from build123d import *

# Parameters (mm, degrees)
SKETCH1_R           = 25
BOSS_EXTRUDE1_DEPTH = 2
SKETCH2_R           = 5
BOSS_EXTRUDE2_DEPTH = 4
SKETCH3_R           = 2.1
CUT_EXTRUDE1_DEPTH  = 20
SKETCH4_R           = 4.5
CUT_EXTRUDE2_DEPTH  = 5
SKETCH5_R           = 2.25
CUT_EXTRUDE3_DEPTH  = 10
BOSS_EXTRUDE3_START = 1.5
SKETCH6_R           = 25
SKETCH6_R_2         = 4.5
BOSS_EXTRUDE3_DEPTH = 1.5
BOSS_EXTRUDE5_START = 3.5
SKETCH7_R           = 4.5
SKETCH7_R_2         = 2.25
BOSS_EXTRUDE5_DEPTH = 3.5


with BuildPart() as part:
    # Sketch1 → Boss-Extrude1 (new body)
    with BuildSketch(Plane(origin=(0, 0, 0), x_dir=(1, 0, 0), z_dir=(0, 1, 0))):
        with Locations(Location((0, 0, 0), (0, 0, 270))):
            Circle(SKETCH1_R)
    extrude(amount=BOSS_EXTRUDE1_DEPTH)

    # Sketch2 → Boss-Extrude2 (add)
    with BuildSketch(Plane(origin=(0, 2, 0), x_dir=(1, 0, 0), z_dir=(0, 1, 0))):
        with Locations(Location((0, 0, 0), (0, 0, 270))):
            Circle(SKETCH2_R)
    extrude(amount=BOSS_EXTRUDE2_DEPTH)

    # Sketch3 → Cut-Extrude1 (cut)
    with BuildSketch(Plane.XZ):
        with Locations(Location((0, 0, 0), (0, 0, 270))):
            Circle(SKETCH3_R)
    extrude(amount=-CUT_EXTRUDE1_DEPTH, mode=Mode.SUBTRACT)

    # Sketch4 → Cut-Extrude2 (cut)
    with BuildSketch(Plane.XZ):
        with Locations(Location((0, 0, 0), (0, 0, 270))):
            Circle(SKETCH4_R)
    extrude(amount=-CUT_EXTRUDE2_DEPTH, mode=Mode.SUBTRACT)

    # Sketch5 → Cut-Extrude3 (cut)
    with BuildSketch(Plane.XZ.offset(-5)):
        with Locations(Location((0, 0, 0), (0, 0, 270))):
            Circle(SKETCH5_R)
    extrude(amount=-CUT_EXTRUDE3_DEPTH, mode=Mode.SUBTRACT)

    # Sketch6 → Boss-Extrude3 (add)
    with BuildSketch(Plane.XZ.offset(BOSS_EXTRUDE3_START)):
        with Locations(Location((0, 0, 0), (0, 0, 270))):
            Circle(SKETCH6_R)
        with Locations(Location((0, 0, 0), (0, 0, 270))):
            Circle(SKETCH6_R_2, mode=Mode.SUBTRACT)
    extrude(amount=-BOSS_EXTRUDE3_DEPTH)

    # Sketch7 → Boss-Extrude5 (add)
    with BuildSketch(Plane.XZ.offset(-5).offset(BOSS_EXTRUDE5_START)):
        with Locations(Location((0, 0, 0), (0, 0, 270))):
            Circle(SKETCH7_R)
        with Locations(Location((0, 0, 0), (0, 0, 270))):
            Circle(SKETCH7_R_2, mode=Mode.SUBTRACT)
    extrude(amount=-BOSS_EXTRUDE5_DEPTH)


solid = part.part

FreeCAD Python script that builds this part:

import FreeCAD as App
import Part
import Sketcher
from FreeCAD import Vector
Q = App.Units.Quantity

doc = App.newDocument("Part")
params = doc.addObject("Spreadsheet::Sheet", "Params")
for row, (alias, value) in enumerate([
    ("sketch1_diameter", "50 mm"),
    ("pad1_length", "2 mm"),
    ("sketch2_diameter", "10 mm"),
    ("pad2_length", "4 mm"),
    ("sketch3_diameter", "4.2 mm"),
    ("pocket1_length", "20 mm"),
    ("sketch4_diameter", "9 mm"),
    ("pocket2_length", "5 mm"),
    ("sketch5_diameter", "4.5 mm"),
    ("pocket3_length", "10 mm"),
    ("sketch6_diameter", "50 mm"),
    ("sketch6_diameter2", "9 mm"),
    ("pad3_length", "1.5 mm"),
    ("sketch7_diameter", "9 mm"),
    ("sketch7_diameter2", "4.5 mm"),
    ("pad4_length", "3.5 mm"),
], start=1):
    params.set(f"A{row}", alias)
    params.set(f"B{row}", "=" + value)
    params.setAlias(f"B{row}", alias)

body = doc.addObject("PartDesign::Body", "Body")

# Sketch on XZ plane
sketch1 = body.newObject("Sketcher::SketchObject", "Sketch")
sketch1.AttachmentSupport = (doc.getObject("XZ_Plane"), [""])
sketch1.MapMode = "FlatFace"
sketch1.addGeometry(Part.Circle(Vector(0, 0, 0), Vector(0, 0, 1), 25), False)
sketch1.addConstraint(Sketcher.Constraint("Coincident", 0, 3, -1, 1))
sketch1.addConstraint(Sketcher.Constraint("Diameter", 0, Q("50 mm")))
sketch1.setExpression("Constraints[1]", "Params.sketch1_diameter")
pad1 = body.newObject("PartDesign::Pad", "Pad")
pad1.Profile = sketch1
pad1.setExpression("Length", "Params.pad1_length")
pad1.Reversed = True

# Sketch on XZ plane
sketch2 = body.newObject("Sketcher::SketchObject", "Sketch001")
sketch2.AttachmentSupport = (doc.getObject("XZ_Plane"), [""])
sketch2.MapMode = "FlatFace"
sketch2.AttachmentOffset = App.Placement(Vector(0, 0, -2), App.Rotation())
sketch2.addGeometry(Part.Circle(Vector(0, 0, 0), Vector(0, 0, 1), 5), False)
sketch2.addConstraint(Sketcher.Constraint("Coincident", 0, 3, -1, 1))
sketch2.addConstraint(Sketcher.Constraint("Diameter", 0, Q("10 mm")))
sketch2.setExpression("Constraints[1]", "Params.sketch2_diameter")
pad2 = body.newObject("PartDesign::Pad", "Pad001")
pad2.Profile = sketch2
pad2.setExpression("Length", "Params.pad2_length")
pad2.Reversed = True

# Sketch on XZ plane
sketch3 = body.newObject("Sketcher::SketchObject", "Sketch002")
sketch3.AttachmentSupport = (doc.getObject("XZ_Plane"), [""])
sketch3.MapMode = "FlatFace"
sketch3.addGeometry(Part.Circle(Vector(0, 0, 0), Vector(0, 0, 1), 2.1), False)
sketch3.addConstraint(Sketcher.Constraint("Coincident", 0, 3, -1, 1))
sketch3.addConstraint(Sketcher.Constraint("Diameter", 0, Q("4.2 mm")))
sketch3.setExpression("Constraints[1]", "Params.sketch3_diameter")
pocket1 = body.newObject("PartDesign::Pocket", "Pocket")
pocket1.Profile = sketch3
pocket1.setExpression("Length", "Params.pocket1_length")

# Sketch on XZ plane
sketch4 = body.newObject("Sketcher::SketchObject", "Sketch003")
sketch4.AttachmentSupport = (doc.getObject("XZ_Plane"), [""])
sketch4.MapMode = "FlatFace"
sketch4.addGeometry(Part.Circle(Vector(0, 0, 0), Vector(0, 0, 1), 4.5), False)
sketch4.addConstraint(Sketcher.Constraint("Coincident", 0, 3, -1, 1))
sketch4.addConstraint(Sketcher.Constraint("Diameter", 0, Q("9 mm")))
sketch4.setExpression("Constraints[1]", "Params.sketch4_diameter")
pocket2 = body.newObject("PartDesign::Pocket", "Pocket001")
pocket2.Profile = sketch4
pocket2.setExpression("Length", "Params.pocket2_length")

# Sketch on XZ plane
sketch5 = body.newObject("Sketcher::SketchObject", "Sketch004")
sketch5.AttachmentSupport = (doc.getObject("XZ_Plane"), [""])
sketch5.MapMode = "FlatFace"
sketch5.AttachmentOffset = App.Placement(Vector(0, 0, -5), App.Rotation())
sketch5.addGeometry(Part.Circle(Vector(0, 0, 0), Vector(0, 0, 1), 2.2), False)
sketch5.addConstraint(Sketcher.Constraint("Coincident", 0, 3, -1, 1))
sketch5.addConstraint(Sketcher.Constraint("Diameter", 0, Q("4.5 mm")))
sketch5.setExpression("Constraints[1]", "Params.sketch5_diameter")
pocket3 = body.newObject("PartDesign::Pocket", "Pocket002")
pocket3.Profile = sketch5
pocket3.setExpression("Length", "Params.pocket3_length")

# Sketch on XZ plane
sketch6 = body.newObject("Sketcher::SketchObject", "Sketch005")
sketch6.AttachmentSupport = (doc.getObject("XZ_Plane"), [""])
sketch6.MapMode = "FlatFace"
sketch6.AttachmentOffset = App.Placement(Vector(0, 0, 1.5), App.Rotation())
sketch6.addGeometry(Part.Circle(Vector(0, 0, 0), Vector(0, 0, 1), 25), False)
sketch6.addGeometry(Part.Circle(Vector(0, 0, 0), Vector(0, 0, 1), 4.5), False)
sketch6.addConstraint(Sketcher.Constraint("Coincident", 0, 3, -1, 1))
sketch6.addConstraint(Sketcher.Constraint("Coincident", 1, 3, -1, 1))
sketch6.addConstraint(Sketcher.Constraint("Diameter", 0, Q("50 mm")))
sketch6.addConstraint(Sketcher.Constraint("Diameter", 1, Q("9 mm")))
sketch6.setExpression("Constraints[2]", "Params.sketch6_diameter")
sketch6.setExpression("Constraints[3]", "Params.sketch6_diameter2")
pad3 = body.newObject("PartDesign::Pad", "Pad002")
pad3.Profile = sketch6
pad3.setExpression("Length", "Params.pad3_length")
pad3.Reversed = True

# Sketch on XZ plane
sketch7 = body.newObject("Sketcher::SketchObject", "Sketch006")
sketch7.AttachmentSupport = (doc.getObject("XZ_Plane"), [""])
sketch7.MapMode = "FlatFace"
sketch7.AttachmentOffset = App.Placement(Vector(0, 0, -1.5), App.Rotation())
sketch7.addGeometry(Part.Circle(Vector(0, 0, 0), Vector(0, 0, 1), 4.5), False)
sketch7.addGeometry(Part.Circle(Vector(0, 0, 0), Vector(0, 0, 1), 2.2), False)
sketch7.addConstraint(Sketcher.Constraint("Coincident", 0, 3, -1, 1))
sketch7.addConstraint(Sketcher.Constraint("Coincident", 1, 3, -1, 1))
sketch7.addConstraint(Sketcher.Constraint("Diameter", 0, Q("9 mm")))
sketch7.addConstraint(Sketcher.Constraint("Diameter", 1, Q("4.5 mm")))
sketch7.setExpression("Constraints[2]", "Params.sketch7_diameter")
sketch7.setExpression("Constraints[3]", "Params.sketch7_diameter2")
pad4 = body.newObject("PartDesign::Pad", "Pad003")
pad4.Profile = sketch7
pad4.setExpression("Length", "Params.pad4_length")
pad4.Reversed = True

doc.recompute()
